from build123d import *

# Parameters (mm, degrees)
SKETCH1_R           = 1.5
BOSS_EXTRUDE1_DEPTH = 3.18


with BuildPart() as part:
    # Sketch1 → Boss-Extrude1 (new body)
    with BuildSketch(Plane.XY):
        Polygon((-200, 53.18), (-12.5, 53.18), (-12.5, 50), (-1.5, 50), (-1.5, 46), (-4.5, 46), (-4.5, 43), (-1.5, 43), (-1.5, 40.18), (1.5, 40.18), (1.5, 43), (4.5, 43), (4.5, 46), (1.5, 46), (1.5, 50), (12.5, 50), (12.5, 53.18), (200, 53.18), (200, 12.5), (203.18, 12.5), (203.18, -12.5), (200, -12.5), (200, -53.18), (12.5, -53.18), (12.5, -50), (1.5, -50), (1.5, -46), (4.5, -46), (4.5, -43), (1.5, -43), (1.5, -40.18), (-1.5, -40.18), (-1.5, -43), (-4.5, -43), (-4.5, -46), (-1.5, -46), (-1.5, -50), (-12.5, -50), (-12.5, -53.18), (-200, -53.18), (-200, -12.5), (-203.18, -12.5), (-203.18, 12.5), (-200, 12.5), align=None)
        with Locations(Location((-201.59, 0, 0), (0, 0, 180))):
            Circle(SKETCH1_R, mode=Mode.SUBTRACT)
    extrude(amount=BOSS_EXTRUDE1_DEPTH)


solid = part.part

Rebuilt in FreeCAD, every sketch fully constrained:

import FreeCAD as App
import Part
import Sketcher

V = App.Vector

doc = App.newDocument("Part")
body = doc.addObject("PartDesign::Body", "Body")

# Sketch on XY plane
sketch1 = body.newObject("Sketcher::SketchObject", "Sketch")
sketch1.AttachmentSupport = (doc.getObject("XY_Plane"), [""])
sketch1.MapMode = "FlatFace"
sketch1.addGeometry(Part.LineSegment(V(-12.5, 53.2, 0), V(-200, 53.2, 0)), False)
sketch1.addGeometry(Part.LineSegment(V(-200, 53.2, 0), V(-200, 12.5, 0)), False)
sketch1.addGeometry(Part.LineSegment(V(-200, 12.5, 0), V(-203.2, 12.5, 0)), False)
sketch1.addGeometry(Part.LineSegment(V(-203.2, 12.5, 0), V(-203.2, -12.5, 0)), False)
sketch1.addGeometry(Part.LineSegment(V(-203.2, -12.5, 0), V(-200, -12.5, 0)), False)
sketch1.addGeometry(Part.LineSegment(V(-200, -12.5, 0), V(-200, -53.2, 0)), False)
sketch1.addGeometry(Part.LineSegment(V(-200, -53.2, 0), V(-12.5, -53.2, 0)), False)
sketch1.addGeometry(Part.LineSegment(V(-12.5, -53.2, 0), V(-12.5, -50, 0)), False)
sketch1.addGeometry(Part.LineSegment(V(-12.5, -50, 0), V(-1.5, -50, 0)), False)
sketch1.addGeometry(Part.LineSegment(V(-1.5, -50, 0), V(-1.5, -46, 0)), False)
sketch1.addGeometry(Part.LineSegment(V(-1.5, -46, 0), V(-4.5, -46, 0)), False)
sketch1.addGeometry(Part.LineSegment(V(-4.5, -46, 0), V(-4.5, -43, 0)), False)
sketch1.addGeometry(Part.LineSegment(V(-4.5, -43, 0), V(-1.5, -43, 0)), False)
sketch1.addGeometry(Part.LineSegment(V(-1.5, -43, 0), V(-1.5, -40.2, 0)), False)
sketch1.addGeometry(Part.LineSegment(V(-1.5, -40.2, 0), V(1.5, -40.2, 0)), False)
sketch1.addGeometry(Part.LineSegment(V(1.5, -40.2, 0), V(1.5, -43, 0)), False)
sketch1.addGeometry(Part.LineSegment(V(1.5, -43, 0), V(4.5, -43, 0)), False)
sketch1.addGeometry(Part.LineSegment(V(4.5, -43, 0), V(4.5, -46, 0)), False)
sketch1.addGeometry(Part.LineSegment(V(4.5, -46, 0), V(1.5, -46, 0)), False)
sketch1.addGeometry(Part.LineSegment(V(1.5, -46, 0), V(1.5, -50, 0)), False)
sketch1.addGeometry(Part.LineSegment(V(1.5, -50, 0), V(12.5, -50, 0)), False)
sketch1.addGeometry(Part.LineSegment(V(12.5, -50, 0), V(12.5, -53.2, 0)), False)
sketch1.addGeometry(Part.LineSegment(V(12.5, -53.2, 0), V(200, -53.2, 0)), False)
sketch1.addGeometry(Part.LineSegment(V(200, -53.2, 0), V(200, -12.5, 0)), False)
sketch1.addGeometry(Part.LineSegment(V(200, -12.5, 0), V(203.2, -12.5, 0)), False)
sketch1.addGeometry(Part.LineSegment(V(203.2, -12.5, 0), V(203.2, 12.5, 0)), False)
sketch1.addGeometry(Part.LineSegment(V(203.2, 12.5, 0), V(200, 12.5, 0)), False)
sketch1.addGeometry(Part.LineSegment(V(200, 12.5, 0), V(200, 53.2, 0)), False)
sketch1.addGeometry(Part.LineSegment(V(200, 53.2, 0), V(12.5, 53.2, 0)), False)
sketch1.addGeometry(Part.LineSegment(V(12.5, 53.2, 0), V(12.5, 50, 0)), False)
sketch1.addGeometry(Part.LineSegment(V(12.5, 50, 0), V(1.5, 50, 0)), False)
sketch1.addGeometry(Part.LineSegment(V(1.5, 50, 0), V(1.5, 46, 0)), False)
sketch1.addGeometry(Part.LineSegment(V(1.5, 46, 0), V(4.5, 46, 0)), False)
sketch1.addGeometry(Part.LineSegment(V(4.5, 46, 0), V(4.5, 43, 0)), False)
sketch1.addGeometry(Part.LineSegment(V(4.5, 43, 0), V(1.5, 43, 0)), False)
sketch1.addGeometry(Part.LineSegment(V(1.5, 43, 0), V(1.5, 40.2, 0)), False)
sketch1.addGeometry(Part.LineSegment(V(1.5, 40.2, 0), V(-1.5, 40.2, 0)), False)
sketch1.addGeometry(Part.LineSegment(V(-1.5, 40.2, 0), V(-1.5, 43, 0)), False)
sketch1.addGeometry(Part.LineSegment(V(-1.5, 43, 0), V(-4.5, 43, 0)), False)
sketch1.addGeometry(Part.LineSegment(V(-4.5, 43, 0), V(-4.5, 46, 0)), False)
sketch1.addGeometry(Part.LineSegment(V(-4.5, 46, 0), V(-1.5, 46, 0)), False)
sketch1.addGeometry(Part.LineSegment(V(-1.5, 46, 0), V(-1.5, 50, 0)), False)
sketch1.addGeometry(Part.LineSegment(V(-1.5, 50, 0), V(-12.5, 50, 0)), False)
sketch1.addGeometry(Part.LineSegment(V(-12.5, 50, 0), V(-12.5, 53.2, 0)), False)
sketch1.addGeometry(Part.Circle(V(-201.6, 0, 0), V(0, 0, 1), 1.5), False)
sketch1.addConstraint(Sketcher.Constraint("Coincident", 0, 2, 1, 1))
sketch1.addConstraint(Sketcher.Constraint("Coincident", 1, 2, 2, 1))
sketch1.addConstraint(Sketcher.Constraint("Coincident", 2, 2, 3, 1))
sketch1.addConstraint(Sketcher.Constraint("Coincident", 3, 2, 4, 1))
sketch1.addConstraint(Sketcher.Constraint("Coincident", 4, 2, 5, 1))
sketch1.addConstraint(Sketcher.Constraint("Coincident", 5, 2, 6, 1))
sketch1.addConstraint(Sketcher.Constraint("Coincident", 6, 2, 7, 1))
sketch1.addConstraint(Sketcher.Constraint("Coincident", 7, 2, 8, 1))
sketch1.addConstraint(Sketcher.Constraint("Coincident", 8, 2, 9, 1))
sketch1.addConstraint(Sketcher.Constraint("Coincident", 9, 2, 10, 1))
sketch1.addConstraint(Sketcher.Constraint("Coincident", 10, 2, 11, 1))
sketch1.addConstraint(Sketcher.Constraint("Coincident", 11, 2, 12, 1))
sketch1.addConstraint(Sketcher.Constraint("Coincident", 12, 2, 13, 1))
sketch1.addConstraint(Sketcher.Constraint("Coincident", 13, 2, 14, 1))
sketch1.addConstraint(Sketcher.Constraint("Coincident", 14, 2, 15, 1))
sketch1.addConstraint(Sketcher.Constraint("Coincident", 15, 2, 16, 1))
sketch1.addConstraint(Sketcher.Constraint("Coincident", 16, 2, 17, 1))
sketch1.addConstraint(Sketcher.Constraint("Coincident", 17, 2, 18, 1))
sketch1.addConstraint(Sketcher.Constraint("Coincident", 18, 2, 19, 1))
sketch1.addConstraint(Sketcher.Constraint("Coincident", 19, 2, 20, 1))
sketch1.addConstraint(Sketcher.Constraint("Coincident", 20, 2, 21, 1))
sketch1.addConstraint(Sketcher.Constraint("Coincident", 21, 2, 22, 1))
sketch1.addConstraint(Sketcher.Constraint("Coincident", 22, 2, 23, 1))
sketch1.addConstraint(Sketcher.Constraint("Coincident", 23, 2, 24, 1))
sketch1.addConstraint(Sketcher.Constraint("Coincident", 24, 2, 25, 1))
sketch1.addConstraint(Sketcher.Constraint("Coincident", 25, 2, 26, 1))
sketch1.addConstraint(Sketcher.Constraint("Coincident", 26, 2, 27, 1))
sketch1.addConstraint(Sketcher.Constraint("Coincident", 27, 2, 28, 1))
sketch1.addConstraint(Sketcher.Constraint("Coincident", 28, 2, 29, 1))
sketch1.addConstraint(Sketcher.Constraint("Coincident", 29, 2, 30, 1))
sketch1.addConstraint(Sketcher.Constraint("Coincident", 30, 2, 31, 1))
sketch1.addConstraint(Sketcher.Constraint("Coincident", 31, 2, 32, 1))
sketch1.addConstraint(Sketcher.Constraint("Coincident", 32, 2, 33, 1))
sketch1.addConstraint(Sketcher.Constraint("Coincident", 33, 2, 34, 1))
sketch1.addConstraint(Sketcher.Constraint("Coincident", 34, 2, 35, 1))
sketch1.addConstraint(Sketcher.Constraint("Coincident", 35, 2, 36, 1))
sketch1.addConstraint(Sketcher.Constraint("Coincident", 36, 2, 37, 1))
sketch1.addConstraint(Sketcher.Constraint("Coincident", 37, 2, 38, 1))
sketch1.addConstraint(Sketcher.Constraint("Coincident", 38, 2, 39, 1))
sketch1.addConstraint(Sketcher.Constraint("Coincident", 39, 2, 40, 1))
sketch1.addConstraint(Sketcher.Constraint("Coincident", 40, 2, 41, 1))
sketch1.addConstraint(Sketcher.Constraint("Coincident", 41, 2, 42, 1))
sketch1.addConstraint(Sketcher.Constraint("Coincident", 42, 2, 43, 1))
sketch1.addConstraint(Sketcher.Constraint("Coincident", 43, 2, 0, 1))
sketch1.addConstraint(Sketcher.Constraint("Horizontal", 0))
sketch1.addConstraint(Sketcher.Constraint("Vertical", 1))
sketch1.addConstraint(Sketcher.Constraint("Horizontal", 2))
sketch1.addConstraint(Sketcher.Constraint("Vertical", 3))
sketch1.addConstraint(Sketcher.Constraint("Horizontal", 4))
sketch1.addConstraint(Sketcher.Constraint("Vertical", 5))
sketch1.addConstraint(Sketcher.Constraint("Horizontal", 6))
sketch1.addConstraint(Sketcher.Constraint("Vertical", 7))
sketch1.addConstraint(Sketcher.Constraint("Horizontal", 8))
sketch1.addConstraint(Sketcher.Constraint("Vertical", 9))
sketch1.addConstraint(Sketcher.Constraint("Horizontal", 10))
sketch1.addConstraint(Sketcher.Constraint("Vertical", 11))
sketch1.addConstraint(Sketcher.Constraint("Horizontal", 12))
sketch1.addConstraint(Sketcher.Constraint("Vertical", 13))
sketch1.addConstraint(Sketcher.Constraint("Horizontal", 14))
sketch1.addConstraint(Sketcher.Constraint("Vertical", 15))
sketch1.addConstraint(Sketcher.Constraint("Horizontal", 16))
sketch1.addConstraint(Sketcher.Constraint("Vertical", 17))
sketch1.addConstraint(Sketcher.Constraint("Horizontal", 18))
sketch1.addConstraint(Sketcher.Constraint("Vertical", 19))
sketch1.addConstraint(Sketcher.Constraint("Horizontal", 20))
sketch1.addConstraint(Sketcher.Constraint("Vertical", 21))
sketch1.addConstraint(Sketcher.Constraint("Horizontal", 22))
sketch1.addConstraint(Sketcher.Constraint("Vertical", 23))
sketch1.addConstraint(Sketcher.Constraint("Horizontal", 24))
sketch1.addConstraint(Sketcher.Constraint("Vertical", 25))
sketch1.addConstraint(Sketcher.Constraint("Horizontal", 26))
sketch1.addConstraint(Sketcher.Constraint("Vertical", 27))
sketch1.addConstraint(Sketcher.Constraint("Horizontal", 28))
sketch1.addConstraint(Sketcher.Constraint("Vertical", 29))
sketch1.addConstraint(Sketcher.Constraint("Horizontal", 30))
sketch1.addConstraint(Sketcher.Constraint("Vertical", 31))
sketch1.addConstraint(Sketcher.Constraint("Horizontal", 32))
sketch1.addConstraint(Sketcher.Constraint("Vertical", 33))
sketch1.addConstraint(Sketcher.Constraint("Horizontal", 34))
sketch1.addConstraint(Sketcher.Constraint("Vertical", 35))
sketch1.addConstraint(Sketcher.Constraint("Horizontal", 36))
sketch1.addConstraint(Sketcher.Constraint("Vertical", 37))
sketch1.addConstraint(Sketcher.Constraint("Horizontal", 38))
sketch1.addConstraint(Sketcher.Constraint("Vertical", 39))
sketch1.addConstraint(Sketcher.Constraint("Horizontal", 40))
sketch1.addConstraint(Sketcher.Constraint("Vertical", 41))
sketch1.addConstraint(Sketcher.Constraint("Horizontal", 42))
sketch1.addConstraint(Sketcher.Constraint("Vertical", 43))
sketch1.addConstraint(Sketcher.Constraint("Symmetric", 0, 2, 22, 2, -1, 1))
sketch1.addConstraint(Sketcher.Constraint("Symmetric", 2, 2, 24, 2, -1, 1))
sketch1.addConstraint(Sketcher.Constraint("Symmetric", 4, 2, 26, 2, -1, 1))
sketch1.addConstraint(Sketcher.Constraint("Symmetric", 6, 2, 28, 2, -1, 1))
sketch1.addConstraint(Sketcher.Constraint("Symmetric", 8, 2, 30, 2, -1, 1))
sketch1.addConstraint(Sketcher.Constraint("Symmetric", 10, 2, 32, 2, -1, 1))
sketch1.addConstraint(Sketcher.Constraint("Symmetric", 12, 2, 34, 2, -1, 1))
sketch1.addConstraint(Sketcher.Constraint("Symmetric", 14, 2, 36, 2, -1, 1))
sketch1.addConstraint(Sketcher.Constraint("Symmetric", 16, 2, 38, 2, -1, 1))
sketch1.addConstraint(Sketcher.Constraint("Symmetric", 18, 2, 40, 2, -1, 1))
sketch1.addConstraint(Sketcher.Constraint("Symmetric", 20, 2, 42, 2, -1, 1))
sketch1.addConstraint(Sketcher.Constraint("Symmetric", 12, 2, 15, 2, -2))
sketch1.addConstraint(Sketcher.Constraint("Symmetric", 10, 2, 17, 2, -2))
sketch1.addConstraint(Sketcher.Constraint("Symmetric", 8, 2, 19, 2, -2))
sketch1.addConstraint(Sketcher.Constraint("Symmetric", 6, 2, 21, 2, -2))
sketch1.addConstraint(Sketcher.Constraint("Symmetric", 4, 2, 23, 2, -2))
sketch1.addConstraint(Sketcher.Constraint("PointOnObject", 44, 3, -1))
sketch1.addConstraint(Sketcher.Constraint("Vertical", 9, 2, 12, 2))
sketch1.addConstraint(Sketcher.Constraint("Equal", 12, 14))
sketch1.addConstraint(Sketcher.Constraint("Equal", 26, 7))
sketch1.addConstraint(Sketcher.Constraint("Equal", 40, 11))
sketch1.addConstraint(Sketcher.Constraint("Diameter", 44, 3.0))
sketch1.addConstraint(Sketcher.Constraint("DistanceX", 8, 1, 8, 2, 11.0))
sketch1.addConstraint(Sketcher.Constraint("DistanceX", 10, 2, 10, 1, 3.0))
sketch1.addConstraint(Sketcher.Constraint("DistanceY", 3, 2, 3, 1, 25.0))
sketch1.addConstraint(Sketcher.Constraint("DistanceY", 9, 1, 9, 2, 4.0))
sketch1.addConstraint(Sketcher.Constraint("DistanceX", 0, 2, 0, 1, 187.5))
sketch1.addConstraint(Sketcher.Constraint("DistanceY", 7, 2, -1, 1, 50.0))
sketch1.addConstraint(Sketcher.Constraint("DistanceX", 2, 2, 2, 1, 3.18))
sketch1.addConstraint(Sketcher.Constraint("DistanceY", 13, 1, 13, 2, 2.82))
sketch1.addConstraint(Sketcher.Constraint("DistanceX", 44, 3, -1, 1, 201.59))
pad1 = body.newObject("PartDesign::Pad", "Pad")
pad1.Profile = sketch1
pad1.Length = 3.18

doc.recompute()
